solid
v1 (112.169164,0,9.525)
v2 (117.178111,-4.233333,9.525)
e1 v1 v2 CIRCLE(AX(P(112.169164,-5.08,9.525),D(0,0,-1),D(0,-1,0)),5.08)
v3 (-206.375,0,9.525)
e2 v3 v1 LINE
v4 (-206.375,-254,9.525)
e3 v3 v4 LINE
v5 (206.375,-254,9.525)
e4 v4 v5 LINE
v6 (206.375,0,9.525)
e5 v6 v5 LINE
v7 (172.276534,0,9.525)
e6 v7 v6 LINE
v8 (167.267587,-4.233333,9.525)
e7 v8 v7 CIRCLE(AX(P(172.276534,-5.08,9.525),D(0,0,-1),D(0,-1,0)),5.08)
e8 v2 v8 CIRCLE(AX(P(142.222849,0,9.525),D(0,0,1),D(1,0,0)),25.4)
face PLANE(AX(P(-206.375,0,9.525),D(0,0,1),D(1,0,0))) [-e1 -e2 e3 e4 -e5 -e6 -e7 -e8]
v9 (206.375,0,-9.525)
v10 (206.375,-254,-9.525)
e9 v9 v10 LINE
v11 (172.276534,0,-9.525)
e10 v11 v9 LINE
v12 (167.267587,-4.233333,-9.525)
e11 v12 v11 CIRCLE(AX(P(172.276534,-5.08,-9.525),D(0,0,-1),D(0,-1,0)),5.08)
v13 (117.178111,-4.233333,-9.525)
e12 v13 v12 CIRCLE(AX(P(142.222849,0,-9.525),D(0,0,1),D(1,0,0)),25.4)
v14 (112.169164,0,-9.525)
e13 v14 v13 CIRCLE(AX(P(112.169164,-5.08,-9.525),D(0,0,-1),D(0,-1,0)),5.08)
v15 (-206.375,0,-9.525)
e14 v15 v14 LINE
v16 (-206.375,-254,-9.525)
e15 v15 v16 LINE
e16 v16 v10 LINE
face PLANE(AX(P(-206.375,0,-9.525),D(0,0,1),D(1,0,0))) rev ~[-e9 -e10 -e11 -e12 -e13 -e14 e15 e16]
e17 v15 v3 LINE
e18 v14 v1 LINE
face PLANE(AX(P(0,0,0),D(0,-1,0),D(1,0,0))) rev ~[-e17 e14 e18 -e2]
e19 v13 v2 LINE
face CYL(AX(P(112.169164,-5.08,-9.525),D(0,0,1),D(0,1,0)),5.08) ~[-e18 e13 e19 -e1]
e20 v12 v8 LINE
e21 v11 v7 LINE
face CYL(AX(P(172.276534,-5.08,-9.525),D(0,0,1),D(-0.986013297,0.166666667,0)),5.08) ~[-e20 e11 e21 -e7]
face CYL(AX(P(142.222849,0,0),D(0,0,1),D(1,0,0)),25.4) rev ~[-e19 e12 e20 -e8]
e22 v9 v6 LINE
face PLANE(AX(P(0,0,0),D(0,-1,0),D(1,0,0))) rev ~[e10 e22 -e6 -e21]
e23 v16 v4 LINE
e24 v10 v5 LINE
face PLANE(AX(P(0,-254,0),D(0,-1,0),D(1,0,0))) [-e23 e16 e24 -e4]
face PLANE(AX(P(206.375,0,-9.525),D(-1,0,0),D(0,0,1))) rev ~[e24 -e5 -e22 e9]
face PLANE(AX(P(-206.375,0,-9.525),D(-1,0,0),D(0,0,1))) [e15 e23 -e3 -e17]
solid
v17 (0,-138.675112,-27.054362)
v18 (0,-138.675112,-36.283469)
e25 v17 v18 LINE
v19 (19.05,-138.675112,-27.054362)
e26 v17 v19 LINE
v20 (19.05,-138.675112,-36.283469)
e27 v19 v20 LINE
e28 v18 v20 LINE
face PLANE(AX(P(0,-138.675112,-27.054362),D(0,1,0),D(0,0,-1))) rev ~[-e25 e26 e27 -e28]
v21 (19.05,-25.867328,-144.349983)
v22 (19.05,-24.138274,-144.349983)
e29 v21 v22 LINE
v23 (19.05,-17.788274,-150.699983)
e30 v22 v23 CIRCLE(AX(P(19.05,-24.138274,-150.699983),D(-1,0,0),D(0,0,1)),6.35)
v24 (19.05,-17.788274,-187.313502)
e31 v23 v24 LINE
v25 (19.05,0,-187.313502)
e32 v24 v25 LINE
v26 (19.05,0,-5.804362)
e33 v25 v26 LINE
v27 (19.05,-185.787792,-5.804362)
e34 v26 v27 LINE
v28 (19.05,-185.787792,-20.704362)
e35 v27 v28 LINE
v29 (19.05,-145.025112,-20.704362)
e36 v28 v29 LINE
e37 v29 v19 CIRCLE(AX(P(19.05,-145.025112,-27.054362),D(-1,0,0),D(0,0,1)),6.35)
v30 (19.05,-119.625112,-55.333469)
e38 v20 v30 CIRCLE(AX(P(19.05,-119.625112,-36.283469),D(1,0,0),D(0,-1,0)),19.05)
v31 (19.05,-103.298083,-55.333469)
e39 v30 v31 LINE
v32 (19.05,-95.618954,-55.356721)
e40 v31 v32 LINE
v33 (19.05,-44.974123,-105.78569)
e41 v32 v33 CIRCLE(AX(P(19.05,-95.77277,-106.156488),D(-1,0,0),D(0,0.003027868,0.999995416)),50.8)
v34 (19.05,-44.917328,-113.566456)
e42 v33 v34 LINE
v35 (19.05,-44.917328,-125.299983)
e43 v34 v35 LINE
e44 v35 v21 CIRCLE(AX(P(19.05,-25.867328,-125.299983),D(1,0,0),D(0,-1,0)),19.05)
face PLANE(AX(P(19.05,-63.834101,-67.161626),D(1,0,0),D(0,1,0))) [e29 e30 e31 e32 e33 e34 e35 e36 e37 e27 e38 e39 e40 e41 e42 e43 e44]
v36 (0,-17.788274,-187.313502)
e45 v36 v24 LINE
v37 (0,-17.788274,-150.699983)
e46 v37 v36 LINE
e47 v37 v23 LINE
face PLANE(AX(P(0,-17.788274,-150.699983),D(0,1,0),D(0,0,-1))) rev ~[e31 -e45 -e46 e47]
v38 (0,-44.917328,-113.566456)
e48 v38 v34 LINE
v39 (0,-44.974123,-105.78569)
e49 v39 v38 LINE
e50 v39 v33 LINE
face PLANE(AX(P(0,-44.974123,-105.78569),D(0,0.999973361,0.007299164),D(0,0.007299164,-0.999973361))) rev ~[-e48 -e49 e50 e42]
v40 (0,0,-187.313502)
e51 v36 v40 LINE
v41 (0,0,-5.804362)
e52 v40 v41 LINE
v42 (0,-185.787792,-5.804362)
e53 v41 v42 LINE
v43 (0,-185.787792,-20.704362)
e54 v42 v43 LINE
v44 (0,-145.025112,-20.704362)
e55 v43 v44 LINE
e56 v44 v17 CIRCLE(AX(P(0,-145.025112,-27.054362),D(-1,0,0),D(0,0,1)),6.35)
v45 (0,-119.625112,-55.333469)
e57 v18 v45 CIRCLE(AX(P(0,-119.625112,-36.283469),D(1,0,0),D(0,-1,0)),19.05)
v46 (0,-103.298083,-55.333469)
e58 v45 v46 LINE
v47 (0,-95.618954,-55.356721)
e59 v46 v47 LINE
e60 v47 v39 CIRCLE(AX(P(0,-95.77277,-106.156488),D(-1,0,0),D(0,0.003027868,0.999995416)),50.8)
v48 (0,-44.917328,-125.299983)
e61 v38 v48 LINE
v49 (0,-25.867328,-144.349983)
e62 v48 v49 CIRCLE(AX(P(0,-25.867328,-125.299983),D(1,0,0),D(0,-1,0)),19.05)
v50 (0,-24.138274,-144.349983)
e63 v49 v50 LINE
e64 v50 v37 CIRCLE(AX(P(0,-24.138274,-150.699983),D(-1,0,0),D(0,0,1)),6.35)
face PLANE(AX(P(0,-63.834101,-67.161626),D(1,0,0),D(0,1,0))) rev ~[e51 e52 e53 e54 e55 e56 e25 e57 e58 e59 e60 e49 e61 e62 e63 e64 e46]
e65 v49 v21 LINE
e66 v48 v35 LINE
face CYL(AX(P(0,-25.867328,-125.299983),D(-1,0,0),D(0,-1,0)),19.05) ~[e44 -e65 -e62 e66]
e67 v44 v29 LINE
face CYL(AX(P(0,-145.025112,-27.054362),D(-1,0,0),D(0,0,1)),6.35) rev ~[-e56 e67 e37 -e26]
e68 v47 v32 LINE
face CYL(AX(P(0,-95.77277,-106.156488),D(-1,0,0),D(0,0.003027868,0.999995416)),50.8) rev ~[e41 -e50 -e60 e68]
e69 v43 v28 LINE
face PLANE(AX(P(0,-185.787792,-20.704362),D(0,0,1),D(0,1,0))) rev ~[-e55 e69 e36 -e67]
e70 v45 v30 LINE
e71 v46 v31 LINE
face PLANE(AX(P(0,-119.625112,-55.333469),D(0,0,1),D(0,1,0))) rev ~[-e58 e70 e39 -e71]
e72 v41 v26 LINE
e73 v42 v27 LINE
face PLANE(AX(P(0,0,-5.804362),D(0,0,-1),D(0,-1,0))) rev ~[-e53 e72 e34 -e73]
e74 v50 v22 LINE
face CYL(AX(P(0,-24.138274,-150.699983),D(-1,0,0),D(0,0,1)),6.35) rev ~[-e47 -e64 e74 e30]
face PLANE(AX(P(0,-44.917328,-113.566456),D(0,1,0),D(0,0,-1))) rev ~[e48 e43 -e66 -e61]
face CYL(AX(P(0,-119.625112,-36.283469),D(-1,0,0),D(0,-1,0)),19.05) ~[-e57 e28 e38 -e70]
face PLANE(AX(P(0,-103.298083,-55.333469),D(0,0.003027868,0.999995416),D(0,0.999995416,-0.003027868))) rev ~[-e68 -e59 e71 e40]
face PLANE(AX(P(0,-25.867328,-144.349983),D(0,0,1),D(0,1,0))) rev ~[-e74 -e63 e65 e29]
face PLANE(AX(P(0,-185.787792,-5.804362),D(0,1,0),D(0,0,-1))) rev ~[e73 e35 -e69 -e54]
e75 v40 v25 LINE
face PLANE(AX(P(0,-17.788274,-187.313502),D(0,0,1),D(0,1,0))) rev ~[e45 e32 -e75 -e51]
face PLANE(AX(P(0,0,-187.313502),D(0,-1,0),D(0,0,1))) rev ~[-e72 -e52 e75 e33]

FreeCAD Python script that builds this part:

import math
import FreeCAD as App
import Part
import Sketcher

V = App.Vector
Q = App.Units.Quantity


def edges_at(feature, points):
    """Names of the edges that pass closest to the given points."""
    edges = feature.Shape.Edges
    near = lambda p: min(range(len(edges)), key=lambda i: edges[i].distToShape(Part.Vertex(*p))[0])
    return sorted({f"Edge{near(p) + 1}" for p in points})

doc = App.newDocument("Part")
body = doc.addObject("PartDesign::Body", "Body")

# Sketch on XZ plane
sketch1 = body.newObject("Sketcher::SketchObject", "Sketch")
sketch1.AttachmentSupport = (doc.getObject("XZ_Plane"), [""])
sketch1.MapMode = "FlatFace"
sketch1.addGeometry(Part.LineSegment(V(-206.375, 9.525, 0), V(-206.375, -9.525, 0)), False)
sketch1.addGeometry(Part.LineSegment(V(-206.375, -9.525, 0), V(206.375, -9.525, 0)), False)
sketch1.addGeometry(Part.LineSegment(V(206.375, -9.525, 0), V(206.375, 9.525, 0)), False)
sketch1.addGeometry(Part.LineSegment(V(206.375, 9.525, 0), V(-206.375, 9.525, 0)), False)
sketch1.addConstraint(Sketcher.Constraint("Coincident", 0, 2, 1, 1))
sketch1.addConstraint(Sketcher.Constraint("Coincident", 1, 2, 2, 1))
sketch1.addConstraint(Sketcher.Constraint("Coincident", 2, 2, 3, 1))
sketch1.addConstraint(Sketcher.Constraint("Coincident", 3, 2, 0, 1))
sketch1.addConstraint(Sketcher.Constraint("Vertical", 0))
sketch1.addConstraint(Sketcher.Constraint("Horizontal", 1))
sketch1.addConstraint(Sketcher.Constraint("Vertical", 2))
sketch1.addConstraint(Sketcher.Constraint("Horizontal", 3))
sketch1.addConstraint(Sketcher.Constraint("Symmetric", 0, 2, 2, 2, -1, 1))
sketch1.addConstraint(Sketcher.Constraint("DistanceX", 1, 1, 1, 2, Q("16.25 in")))
sketch1.addConstraint(Sketcher.Constraint("DistanceY", 0, 2, 0, 1, Q("0.75 in")))
pad1 = body.newObject("PartDesign::Pad", "Pad")
pad1.Profile = sketch1
pad1.Length = Q("10 in")

# Sketch on XY plane
sketch2 = body.newObject("Sketcher::SketchObject", "Sketch001")
sketch2.AttachmentSupport = (doc.getObject("XY_Plane"), [""])
sketch2.MapMode = "FlatFace"
sketch2.addGeometry(Part.Circle(V(142.222849, 0, 0), V(0, 0, 1), 25.4), False)
sketch2.addConstraint(Sketcher.Constraint("PointOnObject", 0, 3, -1))
sketch2.addConstraint(Sketcher.Constraint("Diameter", 0, Q("2 in")))
sketch2.addConstraint(Sketcher.Constraint("DistanceX", -1, 1, 0, 3, Q("142.222849 mm")))
pocket1 = body.newObject("PartDesign::Pocket", "Pocket")
pocket1.Profile = sketch2
pocket1.Length = 55.75124
pocket1.Midplane = True
doc.recompute()

fillet = body.newObject("PartDesign::Fillet", "Fillet")
fillet.Base = (pocket1, edges_at(pocket1, [(116.823, 0, 0), (167.623, 0, 0)]))
fillet.Radius = Q("0.2 in")
body2 = doc.addObject("PartDesign::Body", "Body001")

# Sketch on YZ plane
sketch3 = body2.newObject("Sketcher::SketchObject", "Sketch002")
sketch3.AttachmentSupport = (doc.getObject("YZ_Plane001"), [""])
sketch3.MapMode = "FlatFace"
sketch3.addGeometry(Part.LineSegment(V(0, -187.313502, 0), V(0, -5.804362, 0)), False)
sketch3.addGeometry(Part.LineSegment(V(0, -5.804362, 0), V(-185.787792, -5.804362, 0)), False)
sketch3.addGeometry(Part.LineSegment(V(-185.787792, -5.804362, 0), V(-185.787792, -20.704362, 0)), False)
sketch3.addGeometry(Part.LineSegment(V(-185.787792, -20.704362, 0), V(-145.025112, -20.704362, 0)), False)
sketch3.addGeometry(Part.ArcOfCircle(Part.Circle(V(-145.025112, -27.054362, 0), V(0, 0, 1), 6.35), math.radians(0), math.radians(90)), False)
sketch3.addGeometry(Part.LineSegment(V(-138.675112, -27.054362, 0), V(-138.675112, -36.283469, 0)), False)
sketch3.addGeometry(Part.ArcOfCircle(Part.Circle(V(-119.625112, -36.283469, 0), V(0, 0, 1), 19.05), math.radians(180), math.radians(270)), False)
sketch3.addGeometry(Part.LineSegment(V(-119.625112, -55.333469, 0), V(-103.298083, -55.333469, 0)), False)
sketch3.addGeometry(Part.LineSegment(V(-103.298083, -55.333469, 0), V(-95.618954, -55.356721, 0)), False)
sketch3.addGeometry(Part.ArcOfCircle(Part.Circle(V(-95.77277, -106.156488, 0), V(0, 0, 1), 50.8), math.radians(0.418215), math.radians(89.826516)), False)
sketch3.addGeometry(Part.LineSegment(V(-44.974123, -105.78569, 0), V(-44.917328, -113.566456, 0)), False)
sketch3.addGeometry(Part.LineSegment(V(-44.917328, -113.566456, 0), V(-44.917328, -125.299983, 0)), False)
sketch3.addGeometry(Part.ArcOfCircle(Part.Circle(V(-25.867328, -125.299983, 0), V(0, 0, 1), 19.05), math.radians(180), math.radians(270)), False)
sketch3.addGeometry(Part.LineSegment(V(-25.867328, -144.349983, 0), V(-24.138274, -144.349983, 0)), False)
sketch3.addGeometry(Part.ArcOfCircle(Part.Circle(V(-24.138274, -150.699983, 0), V(0, 0, 1), 6.35), math.radians(0), math.radians(90)), False)
sketch3.addGeometry(Part.LineSegment(V(-17.788274, -150.699983, 0), V(-17.788274, -187.313502, 0)), False)
sketch3.addGeometry(Part.LineSegment(V(-17.788274, -187.313502, 0), V(0, -187.313502, 0)), False)
sketch3.addConstraint(Sketcher.Constraint("Coincident", 0, 2, 1, 1))
sketch3.addConstraint(Sketcher.Constraint("Coincident", 1, 2, 2, 1))
sketch3.addConstraint(Sketcher.Constraint("Coincident", 2, 2, 3, 1))
sketch3.addConstraint(Sketcher.Constraint("Tangent", 3, 2, 4, 2))
sketch3.addConstraint(Sketcher.Constraint("Tangent", 4, 1, 5, 1))
sketch3.addConstraint(Sketcher.Constraint("Tangent", 5, 2, 6, 1))
sketch3.addConstraint(Sketcher.Constraint("Tangent", 6, 2, 7, 1))
sketch3.addConstraint(Sketcher.Constraint("Coincident", 7, 2, 8, 1))
sketch3.addConstraint(Sketcher.Constraint("Tangent", 8, 2, 9, 2))
sketch3.addConstraint(Sketcher.Constraint("Tangent", 9, 1, 10, 1))
sketch3.addConstraint(Sketcher.Constraint("Coincident", 10, 2, 11, 1))
sketch3.addConstraint(Sketcher.Constraint("Tangent", 11, 2, 12, 1))
sketch3.addConstraint(Sketcher.Constraint("Tangent", 12, 2, 13, 1))
sketch3.addConstraint(Sketcher.Constraint("Tangent", 13, 2, 14, 2))
sketch3.addConstraint(Sketcher.Constraint("Tangent", 14, 1, 15, 1))
sketch3.addConstraint(Sketcher.Constraint("Coincident", 15, 2, 16, 1))
sketch3.addConstraint(Sketcher.Constraint("Coincident", 16, 2, 0, 1))
sketch3.addConstraint(Sketcher.Constraint("Vertical", 0))
sketch3.addConstraint(Sketcher.Constraint("Horizontal", 1))
sketch3.addConstraint(Sketcher.Constraint("Vertical", 2))
sketch3.addConstraint(Sketcher.Constraint("Horizontal", 3))
sketch3.addConstraint(Sketcher.Constraint("Vertical", 5))
sketch3.addConstraint(Sketcher.Constraint("Horizontal", 7))
sketch3.addConstraint(Sketcher.Constraint("Vertical", 11))
sketch3.addConstraint(Sketcher.Constraint("Horizontal", 13))
sketch3.addConstraint(Sketcher.Constraint("Vertical", 15))
sketch3.addConstraint(Sketcher.Constraint("Horizontal", 16))
sketch3.addConstraint(Sketcher.Constraint("Equal", 6, 12))
sketch3.addConstraint(Sketcher.Constraint("Equal", 4, 14))
sketch3.addConstraint(Sketcher.Constraint("PointOnObject", 0, 2, -2))
sketch3.addConstraint(Sketcher.Constraint("Radius", 9, Q("2 in")))
sketch3.addConstraint(Sketcher.Constraint("Radius", 4, Q("0.25 in")))
sketch3.addConstraint(Sketcher.Constraint("Radius", 6, Q("0.75 in")))
sketch3.addConstraint(Sketcher.Constraint("DistanceY", 2, 2, 2, 1, Q("14.900001 mm")))
sketch3.addConstraint(Sketcher.Constraint("DistanceX", 1, 2, 1, 1, Q("185.787792 mm")))
sketch3.addConstraint(Sketcher.Constraint("DistanceX", 3, 1, 3, 2, Q("40.76268 mm")))
sketch3.addConstraint(Sketcher.Constraint("DistanceX", 7, 1, 7, 2, Q("16.327029 mm")))
sketch3.addConstraint(Sketcher.Constraint("DistanceY", 0, 1, 0, 2, Q("181.509141 mm")))
sketch3.addConstraint(Sketcher.Constraint("DistanceY", 15, 2, 15, 1, Q("36.61352 mm")))
sketch3.addConstraint(Sketcher.Constraint("DistanceX", 13, 1, 13, 2, Q("1.729054 mm")))
sketch3.addConstraint(Sketcher.Constraint("DistanceX", 16, 1, 16, 2, Q("17.788274 mm")))
sketch3.addConstraint(Sketcher.Constraint("DistanceY", 5, 2, 5, 1, Q("9.229107 mm")))
sketch3.addConstraint(Sketcher.Constraint("DistanceY", 11, 2, 11, 1, Q("11.733527 mm")))
sketch3.addConstraint(Sketcher.Constraint("DistanceY", 6, 3, -1, 1, Q("36.283469 mm")))
sketch3.addConstraint(Sketcher.Constraint("DistanceX", 9, 3, -1, 1, Q("95.77277 mm")))
sketch3.addConstraint(Sketcher.Constraint("DistanceY", 8, 2, -1, 1, Q("55.356721 mm")))
pad2 = body2.newObject("PartDesign::Pad", "Pad001")
pad2.Profile = sketch3
pad2.Length = Q("0.75 in")

doc.recompute()
